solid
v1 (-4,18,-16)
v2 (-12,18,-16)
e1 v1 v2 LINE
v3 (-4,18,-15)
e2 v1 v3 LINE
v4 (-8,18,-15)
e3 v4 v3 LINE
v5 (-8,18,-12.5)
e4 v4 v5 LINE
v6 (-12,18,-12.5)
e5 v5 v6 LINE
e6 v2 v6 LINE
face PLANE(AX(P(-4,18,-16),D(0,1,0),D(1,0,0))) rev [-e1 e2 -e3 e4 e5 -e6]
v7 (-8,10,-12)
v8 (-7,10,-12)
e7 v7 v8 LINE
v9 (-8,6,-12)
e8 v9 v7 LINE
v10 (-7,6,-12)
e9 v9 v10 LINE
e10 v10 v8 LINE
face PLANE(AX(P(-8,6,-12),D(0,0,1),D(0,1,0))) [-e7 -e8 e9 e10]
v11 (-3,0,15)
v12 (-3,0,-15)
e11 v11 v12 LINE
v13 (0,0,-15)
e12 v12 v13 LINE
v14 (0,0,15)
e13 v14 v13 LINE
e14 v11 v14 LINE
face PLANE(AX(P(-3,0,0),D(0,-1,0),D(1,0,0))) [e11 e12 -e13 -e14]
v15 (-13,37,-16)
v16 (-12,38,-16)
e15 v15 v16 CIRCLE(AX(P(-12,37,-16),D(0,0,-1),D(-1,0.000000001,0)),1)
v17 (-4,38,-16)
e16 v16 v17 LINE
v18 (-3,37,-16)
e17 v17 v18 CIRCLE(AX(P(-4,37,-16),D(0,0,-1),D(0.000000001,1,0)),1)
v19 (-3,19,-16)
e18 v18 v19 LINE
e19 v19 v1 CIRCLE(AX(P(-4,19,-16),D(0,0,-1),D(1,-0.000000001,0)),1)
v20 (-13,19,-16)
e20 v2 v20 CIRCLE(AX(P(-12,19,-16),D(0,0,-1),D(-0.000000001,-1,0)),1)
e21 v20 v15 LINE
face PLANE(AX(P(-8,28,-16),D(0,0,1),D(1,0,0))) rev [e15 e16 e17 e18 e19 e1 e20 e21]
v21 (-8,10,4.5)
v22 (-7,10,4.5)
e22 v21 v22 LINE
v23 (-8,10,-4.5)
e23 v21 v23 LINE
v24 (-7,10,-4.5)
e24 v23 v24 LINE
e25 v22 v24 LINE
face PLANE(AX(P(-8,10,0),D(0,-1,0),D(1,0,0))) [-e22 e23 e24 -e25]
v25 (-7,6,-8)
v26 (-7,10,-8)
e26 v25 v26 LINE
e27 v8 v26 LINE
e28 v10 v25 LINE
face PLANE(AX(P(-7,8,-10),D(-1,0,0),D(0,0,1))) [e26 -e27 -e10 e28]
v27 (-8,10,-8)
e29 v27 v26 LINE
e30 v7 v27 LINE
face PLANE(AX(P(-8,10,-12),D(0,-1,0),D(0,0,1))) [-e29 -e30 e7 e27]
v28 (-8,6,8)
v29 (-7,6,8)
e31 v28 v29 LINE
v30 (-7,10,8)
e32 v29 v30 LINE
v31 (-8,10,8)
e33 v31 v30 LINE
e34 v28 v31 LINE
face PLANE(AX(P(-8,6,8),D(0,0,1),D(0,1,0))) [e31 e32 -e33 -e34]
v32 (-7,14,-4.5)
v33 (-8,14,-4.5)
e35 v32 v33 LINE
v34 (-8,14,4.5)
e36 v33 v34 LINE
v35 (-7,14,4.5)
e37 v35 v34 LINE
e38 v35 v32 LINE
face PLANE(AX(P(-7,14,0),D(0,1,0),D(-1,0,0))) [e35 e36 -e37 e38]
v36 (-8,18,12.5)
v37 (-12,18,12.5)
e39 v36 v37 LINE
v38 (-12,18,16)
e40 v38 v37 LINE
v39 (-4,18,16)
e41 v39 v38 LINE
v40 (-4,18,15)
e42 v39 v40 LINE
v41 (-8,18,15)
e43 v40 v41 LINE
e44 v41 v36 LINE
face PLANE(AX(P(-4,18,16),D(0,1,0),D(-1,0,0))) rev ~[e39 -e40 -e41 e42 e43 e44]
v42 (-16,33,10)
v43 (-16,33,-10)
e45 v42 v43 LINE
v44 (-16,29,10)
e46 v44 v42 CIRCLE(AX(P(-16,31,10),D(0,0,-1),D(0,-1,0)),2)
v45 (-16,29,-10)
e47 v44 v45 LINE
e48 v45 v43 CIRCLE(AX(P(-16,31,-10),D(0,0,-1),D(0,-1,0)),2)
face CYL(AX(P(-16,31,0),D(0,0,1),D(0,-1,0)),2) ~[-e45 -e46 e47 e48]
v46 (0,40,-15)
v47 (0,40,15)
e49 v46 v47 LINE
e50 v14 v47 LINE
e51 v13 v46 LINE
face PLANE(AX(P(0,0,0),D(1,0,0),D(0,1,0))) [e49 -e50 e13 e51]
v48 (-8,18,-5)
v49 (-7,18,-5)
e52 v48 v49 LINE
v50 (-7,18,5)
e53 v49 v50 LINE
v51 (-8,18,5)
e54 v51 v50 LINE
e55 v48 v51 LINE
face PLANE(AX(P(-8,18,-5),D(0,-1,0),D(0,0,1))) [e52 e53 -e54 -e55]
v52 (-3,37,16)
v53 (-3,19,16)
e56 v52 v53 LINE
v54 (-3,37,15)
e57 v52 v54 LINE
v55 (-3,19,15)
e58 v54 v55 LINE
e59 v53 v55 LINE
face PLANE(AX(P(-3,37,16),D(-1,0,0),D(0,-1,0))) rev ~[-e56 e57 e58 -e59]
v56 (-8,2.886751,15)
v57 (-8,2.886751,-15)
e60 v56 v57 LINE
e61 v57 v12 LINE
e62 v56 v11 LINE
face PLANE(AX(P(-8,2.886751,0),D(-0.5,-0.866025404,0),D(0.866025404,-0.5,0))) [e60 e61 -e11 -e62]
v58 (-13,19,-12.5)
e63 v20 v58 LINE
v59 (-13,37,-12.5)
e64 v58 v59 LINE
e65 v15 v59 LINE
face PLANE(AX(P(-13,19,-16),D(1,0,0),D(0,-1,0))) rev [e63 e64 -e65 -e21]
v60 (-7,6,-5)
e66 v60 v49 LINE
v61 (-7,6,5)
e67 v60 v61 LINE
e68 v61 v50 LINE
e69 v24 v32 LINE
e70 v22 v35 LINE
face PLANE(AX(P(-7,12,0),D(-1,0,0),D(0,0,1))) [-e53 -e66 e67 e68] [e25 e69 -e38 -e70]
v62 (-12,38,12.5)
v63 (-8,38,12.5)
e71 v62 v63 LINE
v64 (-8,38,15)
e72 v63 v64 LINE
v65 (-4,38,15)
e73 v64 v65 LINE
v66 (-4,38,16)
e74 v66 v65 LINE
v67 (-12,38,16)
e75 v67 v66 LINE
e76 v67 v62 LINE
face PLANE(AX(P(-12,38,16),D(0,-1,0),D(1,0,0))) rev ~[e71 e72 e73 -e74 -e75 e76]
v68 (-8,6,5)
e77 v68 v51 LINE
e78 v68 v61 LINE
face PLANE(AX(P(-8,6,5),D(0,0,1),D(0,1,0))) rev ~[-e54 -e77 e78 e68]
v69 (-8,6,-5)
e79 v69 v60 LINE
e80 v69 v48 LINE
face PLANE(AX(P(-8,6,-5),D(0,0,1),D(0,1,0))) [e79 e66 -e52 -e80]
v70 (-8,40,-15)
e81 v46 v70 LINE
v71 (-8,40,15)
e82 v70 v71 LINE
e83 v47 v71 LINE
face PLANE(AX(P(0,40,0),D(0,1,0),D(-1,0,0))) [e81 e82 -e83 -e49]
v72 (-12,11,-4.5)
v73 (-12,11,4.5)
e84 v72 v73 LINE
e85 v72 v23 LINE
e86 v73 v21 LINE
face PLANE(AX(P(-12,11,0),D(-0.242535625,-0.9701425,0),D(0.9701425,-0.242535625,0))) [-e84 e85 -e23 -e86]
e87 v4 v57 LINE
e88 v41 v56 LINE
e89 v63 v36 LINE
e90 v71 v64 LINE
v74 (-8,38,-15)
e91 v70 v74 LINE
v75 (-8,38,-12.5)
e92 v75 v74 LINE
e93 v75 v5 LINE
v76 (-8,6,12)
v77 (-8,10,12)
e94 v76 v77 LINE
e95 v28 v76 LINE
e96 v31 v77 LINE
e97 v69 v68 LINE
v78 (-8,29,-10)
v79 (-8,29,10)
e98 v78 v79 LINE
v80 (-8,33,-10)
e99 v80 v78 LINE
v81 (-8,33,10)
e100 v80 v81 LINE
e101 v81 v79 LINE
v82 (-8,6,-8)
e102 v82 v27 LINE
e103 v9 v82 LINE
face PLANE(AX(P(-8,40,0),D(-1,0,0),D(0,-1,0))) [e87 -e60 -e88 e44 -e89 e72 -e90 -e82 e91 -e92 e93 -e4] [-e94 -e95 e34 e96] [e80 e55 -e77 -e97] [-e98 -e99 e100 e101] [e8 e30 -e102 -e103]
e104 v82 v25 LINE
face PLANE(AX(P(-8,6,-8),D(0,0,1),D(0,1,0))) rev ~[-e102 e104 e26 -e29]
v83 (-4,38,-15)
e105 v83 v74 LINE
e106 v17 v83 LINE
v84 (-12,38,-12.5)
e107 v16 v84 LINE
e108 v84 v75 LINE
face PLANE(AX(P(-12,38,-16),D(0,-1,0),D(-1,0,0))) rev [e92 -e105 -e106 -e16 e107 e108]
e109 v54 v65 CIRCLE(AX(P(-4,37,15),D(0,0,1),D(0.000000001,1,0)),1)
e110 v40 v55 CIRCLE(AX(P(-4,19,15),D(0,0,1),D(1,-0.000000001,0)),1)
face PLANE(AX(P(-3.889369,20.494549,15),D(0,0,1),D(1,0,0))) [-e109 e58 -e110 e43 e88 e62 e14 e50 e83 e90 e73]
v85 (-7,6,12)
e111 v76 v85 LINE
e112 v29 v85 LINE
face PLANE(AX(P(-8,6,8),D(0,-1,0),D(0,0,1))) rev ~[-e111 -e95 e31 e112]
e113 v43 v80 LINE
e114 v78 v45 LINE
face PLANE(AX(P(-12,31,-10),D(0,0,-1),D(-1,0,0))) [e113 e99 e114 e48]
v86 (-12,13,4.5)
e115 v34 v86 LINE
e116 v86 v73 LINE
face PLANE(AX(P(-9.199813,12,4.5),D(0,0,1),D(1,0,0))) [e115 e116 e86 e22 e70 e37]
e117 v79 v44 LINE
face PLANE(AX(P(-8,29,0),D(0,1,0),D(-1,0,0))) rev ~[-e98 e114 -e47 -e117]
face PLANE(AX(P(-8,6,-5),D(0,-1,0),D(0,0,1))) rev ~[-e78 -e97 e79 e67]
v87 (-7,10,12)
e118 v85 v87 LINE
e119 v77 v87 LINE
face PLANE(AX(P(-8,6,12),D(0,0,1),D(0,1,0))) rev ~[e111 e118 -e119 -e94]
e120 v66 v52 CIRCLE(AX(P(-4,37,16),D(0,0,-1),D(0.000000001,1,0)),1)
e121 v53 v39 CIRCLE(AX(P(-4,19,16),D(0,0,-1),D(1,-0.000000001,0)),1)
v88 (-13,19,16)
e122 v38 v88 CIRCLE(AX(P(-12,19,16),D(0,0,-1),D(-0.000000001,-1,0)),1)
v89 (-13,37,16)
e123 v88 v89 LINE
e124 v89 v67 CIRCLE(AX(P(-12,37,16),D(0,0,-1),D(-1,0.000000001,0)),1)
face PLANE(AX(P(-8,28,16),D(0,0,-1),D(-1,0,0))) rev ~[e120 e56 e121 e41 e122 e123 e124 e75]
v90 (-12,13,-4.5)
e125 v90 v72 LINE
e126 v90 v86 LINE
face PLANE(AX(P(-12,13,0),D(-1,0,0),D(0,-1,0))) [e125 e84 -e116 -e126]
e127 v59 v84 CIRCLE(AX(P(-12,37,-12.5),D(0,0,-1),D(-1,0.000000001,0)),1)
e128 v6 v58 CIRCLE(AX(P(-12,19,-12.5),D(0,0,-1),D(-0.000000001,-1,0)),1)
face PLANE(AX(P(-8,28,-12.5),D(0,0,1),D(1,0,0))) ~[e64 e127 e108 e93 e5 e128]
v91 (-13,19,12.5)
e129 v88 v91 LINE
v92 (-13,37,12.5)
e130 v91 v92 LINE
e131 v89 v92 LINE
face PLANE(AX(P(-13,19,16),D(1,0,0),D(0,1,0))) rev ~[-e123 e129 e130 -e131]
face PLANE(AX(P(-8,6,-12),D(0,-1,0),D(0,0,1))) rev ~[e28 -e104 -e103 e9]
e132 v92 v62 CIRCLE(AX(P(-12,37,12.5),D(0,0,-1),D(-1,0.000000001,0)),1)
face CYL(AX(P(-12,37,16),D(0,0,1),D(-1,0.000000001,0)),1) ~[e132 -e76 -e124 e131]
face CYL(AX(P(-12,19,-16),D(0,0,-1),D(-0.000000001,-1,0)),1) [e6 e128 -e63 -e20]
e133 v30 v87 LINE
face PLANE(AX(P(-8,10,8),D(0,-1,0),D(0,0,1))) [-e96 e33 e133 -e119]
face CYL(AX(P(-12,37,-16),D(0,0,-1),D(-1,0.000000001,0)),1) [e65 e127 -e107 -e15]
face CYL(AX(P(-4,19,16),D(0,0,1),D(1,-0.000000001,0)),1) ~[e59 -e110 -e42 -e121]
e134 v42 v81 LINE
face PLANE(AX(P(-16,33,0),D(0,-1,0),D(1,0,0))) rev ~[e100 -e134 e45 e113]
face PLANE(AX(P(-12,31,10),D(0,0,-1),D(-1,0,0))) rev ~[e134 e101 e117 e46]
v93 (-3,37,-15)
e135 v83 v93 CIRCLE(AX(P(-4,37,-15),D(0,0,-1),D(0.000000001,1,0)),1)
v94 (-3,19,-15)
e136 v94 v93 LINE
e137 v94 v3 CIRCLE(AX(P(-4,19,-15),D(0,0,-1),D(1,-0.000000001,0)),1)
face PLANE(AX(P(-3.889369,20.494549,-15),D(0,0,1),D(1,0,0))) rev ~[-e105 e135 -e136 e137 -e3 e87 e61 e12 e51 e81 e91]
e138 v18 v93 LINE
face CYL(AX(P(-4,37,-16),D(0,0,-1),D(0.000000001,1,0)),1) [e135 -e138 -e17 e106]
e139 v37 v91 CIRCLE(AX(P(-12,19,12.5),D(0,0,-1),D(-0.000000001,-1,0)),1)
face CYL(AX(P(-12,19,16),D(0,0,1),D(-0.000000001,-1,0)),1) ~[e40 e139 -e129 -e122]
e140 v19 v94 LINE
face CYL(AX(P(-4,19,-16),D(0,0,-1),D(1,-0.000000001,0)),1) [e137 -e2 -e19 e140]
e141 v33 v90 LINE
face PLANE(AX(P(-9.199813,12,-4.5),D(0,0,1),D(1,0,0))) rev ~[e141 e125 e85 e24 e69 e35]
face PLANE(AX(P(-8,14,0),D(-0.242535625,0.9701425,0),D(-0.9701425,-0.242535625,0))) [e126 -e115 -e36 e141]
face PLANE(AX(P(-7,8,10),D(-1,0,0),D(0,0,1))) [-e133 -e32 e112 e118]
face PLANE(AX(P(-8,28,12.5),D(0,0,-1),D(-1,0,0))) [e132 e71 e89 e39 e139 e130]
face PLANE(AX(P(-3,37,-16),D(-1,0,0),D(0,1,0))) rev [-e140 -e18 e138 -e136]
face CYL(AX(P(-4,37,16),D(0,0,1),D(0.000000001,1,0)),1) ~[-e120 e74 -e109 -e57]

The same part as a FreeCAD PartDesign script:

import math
import FreeCAD as App
import Part
import Sketcher
from FreeCAD import Vector
Q = App.Units.Quantity

doc = App.newDocument("Part")
body = doc.addObject("PartDesign::Body", "Body")

# Sketch on XY plane
sketch1 = body.newObject("Sketcher::SketchObject", "Sketch")
sketch1.AttachmentSupport = (doc.getObject("XY_Plane"), [""])
sketch1.MapMode = "FlatFace"
sketch1.addGeometry(Part.LineSegment(Vector(0, 0, 0), Vector(0, 40, 0)), False)
sketch1.addGeometry(Part.LineSegment(Vector(0, 40, 0), Vector(-8, 40, 0)), False)
sketch1.addGeometry(Part.LineSegment(Vector(-8, 40, 0), Vector(-8, 2.886751, 0)), False)
sketch1.addGeometry(Part.LineSegment(Vector(-8, 2.886751, 0), Vector(-3, 0, 0)), False)
sketch1.addGeometry(Part.LineSegment(Vector(-3, 0, 0), Vector(0, 0, 0)), False)
sketch1.addConstraint(Sketcher.Constraint("Coincident", 0, 2, 1, 1))
sketch1.addConstraint(Sketcher.Constraint("Coincident", 1, 2, 2, 1))
sketch1.addConstraint(Sketcher.Constraint("Coincident", 2, 2, 3, 1))
sketch1.addConstraint(Sketcher.Constraint("Coincident", 3, 2, 4, 1))
sketch1.addConstraint(Sketcher.Constraint("Coincident", 4, 2, 0, 1))
sketch1.addConstraint(Sketcher.Constraint("Vertical", 0))
sketch1.addConstraint(Sketcher.Constraint("Horizontal", 1))
sketch1.addConstraint(Sketcher.Constraint("Vertical", 2))
sketch1.addConstraint(Sketcher.Constraint("Horizontal", 4))
sketch1.addConstraint(Sketcher.Constraint("Coincident", 4, 2, -1, 1))
sketch1.addConstraint(Sketcher.Constraint("DistanceX", 1, 2, 1, 1, Q("8 mm")))
sketch1.addConstraint(Sketcher.Constraint("DistanceX", 4, 1, 4, 2, Q("3 mm")))
sketch1.addConstraint(Sketcher.Constraint("DistanceY", 0, 1, 0, 2, Q("40 mm")))
sketch1.addConstraint(Sketcher.Constraint("Angle", 3, Q("-30 deg")))
pad1 = body.newObject("PartDesign::Pad", "Pad")
pad1.Profile = sketch1
pad1.Length = 30
pad1.Midplane = True

# Sketch on YZ plane
sketch2 = body.newObject("Sketcher::SketchObject", "Sketch001")
sketch2.AttachmentSupport = (doc.getObject("YZ_Plane"), [""])
sketch2.MapMode = "FlatFace"
sketch2.AttachmentOffset = App.Placement(Vector(0, 0, -8), App.Rotation())
sketch2.addGeometry(Part.LineSegment(Vector(18, -5, 0), Vector(6, -5, 0)), False)
sketch2.addGeometry(Part.LineSegment(Vector(6, -5, 0), Vector(6, 5, 0)), False)
sketch2.addGeometry(Part.LineSegment(Vector(6, 5, 0), Vector(18, 5, 0)), False)
sketch2.addGeometry(Part.LineSegment(Vector(18, 5, 0), Vector(18, -5, 0)), False)
sketch2.addGeometry(Part.LineSegment(Vector(10, -12, 0), Vector(6, -12, 0)), False)
sketch2.addGeometry(Part.LineSegment(Vector(6, -12, 0), Vector(6, -8, 0)), False)
sketch2.addGeometry(Part.LineSegment(Vector(6, -8, 0), Vector(10, -8, 0)), False)
sketch2.addGeometry(Part.LineSegment(Vector(10, -8, 0), Vector(10, -12, 0)), False)
sketch2.addGeometry(Part.LineSegment(Vector(10, 8, 0), Vector(6, 8, 0)), False)
sketch2.addGeometry(Part.LineSegment(Vector(6, 8, 0), Vector(6, 12, 0)), False)
sketch2.addGeometry(Part.LineSegment(Vector(6, 12, 0), Vector(10, 12, 0)), False)
sketch2.addGeometry(Part.LineSegment(Vector(10, 12, 0), Vector(10, 8, 0)), False)
sketch2.addConstraint(Sketcher.Constraint("Coincident", 0, 2, 1, 1))
sketch2.addConstraint(Sketcher.Constraint("Coincident", 1, 2, 2, 1))
sketch2.addConstraint(Sketcher.Constraint("Coincident", 2, 2, 3, 1))
sketch2.addConstraint(Sketcher.Constraint("Coincident", 3, 2, 0, 1))
sketch2.addConstraint(Sketcher.Constraint("Coincident", 4, 2, 5, 1))
sketch2.addConstraint(Sketcher.Constraint("Coincident", 5, 2, 6, 1))
sketch2.addConstraint(Sketcher.Constraint("Coincident", 6, 2, 7, 1))
sketch2.addConstraint(Sketcher.Constraint("Coincident", 7, 2, 4, 1))
sketch2.addConstraint(Sketcher.Constraint("Coincident", 8, 2, 9, 1))
sketch2.addConstraint(Sketcher.Constraint("Coincident", 9, 2, 10, 1))
sketch2.addConstraint(Sketcher.Constraint("Coincident", 10, 2, 11, 1))
sketch2.addConstraint(Sketcher.Constraint("Coincident", 11, 2, 8, 1))
sketch2.addConstraint(Sketcher.Constraint("Horizontal", 0))
sketch2.addConstraint(Sketcher.Constraint("Vertical", 1))
sketch2.addConstraint(Sketcher.Constraint("Horizontal", 2))
sketch2.addConstraint(Sketcher.Constraint("Vertical", 3))
sketch2.addConstraint(Sketcher.Constraint("Horizontal", 4))
sketch2.addConstraint(Sketcher.Constraint("Vertical", 5))
sketch2.addConstraint(Sketcher.Constraint("Horizontal", 6))
sketch2.addConstraint(Sketcher.Constraint("Vertical", 7))
sketch2.addConstraint(Sketcher.Constraint("Horizontal", 8))
sketch2.addConstraint(Sketcher.Constraint("Vertical", 9))
sketch2.addConstraint(Sketcher.Constraint("Horizontal", 10))
sketch2.addConstraint(Sketcher.Constraint("Vertical", 11))
sketch2.addConstraint(Sketcher.Constraint("Symmetric", 5, 2, 8, 2, -1))
sketch2.addConstraint(Sketcher.Constraint("Symmetric", 7, 2, 10, 2, -1))
sketch2.addConstraint(Sketcher.Constraint("Vertical", 1, 2, 4, 2))
sketch2.addConstraint(Sketcher.Constraint("Equal", 10, 5))
sketch2.addConstraint(Sketcher.Constraint("DistanceX", 0, 2, 0, 1, Q("12 mm")))
sketch2.addConstraint(Sketcher.Constraint("DistanceX", 4, 2, 4, 1, Q("4 mm")))
sketch2.addConstraint(Sketcher.Constraint("DistanceY", 1, 1, 1, 2, Q("10 mm")))
sketch2.addConstraint(Sketcher.Constraint("DistanceX", -1, 1, 0, 2, Q("6 mm")))
sketch2.addConstraint(Sketcher.Constraint("DistanceY", 0, 2, -1, 1, Q("5 mm")))
sketch2.addConstraint(Sketcher.Constraint("DistanceY", 4, 2, -1, 1, Q("12 mm")))
pocket1 = body.newObject("PartDesign::Pocket", "Pocket")
pocket1.Profile = sketch2
pocket1.Length = 1
pocket1.Reversed = True

# Sketch on XY plane
sketch3 = body.newObject("Sketcher::SketchObject", "Sketch002")
sketch3.AttachmentSupport = (doc.getObject("XY_Plane"), [""])
sketch3.MapMode = "FlatFace"
sketch3.addGeometry(Part.LineSegment(Vector(-7, 14, 0), Vector(-8, 14, 0)), False)
sketch3.addGeometry(Part.LineSegment(Vector(-8, 14, 0), Vector(-12, 13, 0)), False)
sketch3.addGeometry(Part.LineSegment(Vector(-12, 13, 0), Vector(-12, 11, 0)), False)
sketch3.addGeometry(Part.LineSegment(Vector(-12, 11, 0), Vector(-8, 10, 0)), False)
sketch3.addGeometry(Part.LineSegment(Vector(-8, 10, 0), Vector(-7, 10, 0)), False)
sketch3.addGeometry(Part.LineSegment(Vector(-7, 10, 0), Vector(-7, 14, 0)), False)
sketch3.addConstraint(Sketcher.Constraint("Coincident", 0, 2, 1, 1))
sketch3.addConstraint(Sketcher.Constraint("Coincident", 1, 2, 2, 1))
sketch3.addConstraint(Sketcher.Constraint("Coincident", 2, 2, 3, 1))
sketch3.addConstraint(Sketcher.Constraint("Coincident", 3, 2, 4, 1))
sketch3.addConstraint(Sketcher.Constraint("Coincident", 4, 2, 5, 1))
sketch3.addConstraint(Sketcher.Constraint("Coincident", 5, 2, 0, 1))
sketch3.addConstraint(Sketcher.Constraint("Horizontal", 0))
sketch3.addConstraint(Sketcher.Constraint("Vertical", 2))
sketch3.addConstraint(Sketcher.Constraint("Horizontal", 4))
sketch3.addConstraint(Sketcher.Constraint("Vertical", 5))
sketch3.addConstraint(Sketcher.Constraint("Vertical", 0, 2, 3, 2))
sketch3.addConstraint(Sketcher.Constraint("Equal", 1, 3))
sketch3.addConstraint(Sketcher.Constraint("DistanceX", 0, 2, 0, 1, Q("1 mm")))
sketch3.addConstraint(Sketcher.Constraint("DistanceY", 2, 2, 2, 1, Q("2 mm")))
sketch3.addConstraint(Sketcher.Constraint("DistanceY", 5, 1, 5, 2, Q("4 mm")))
sketch3.addConstraint(Sketcher.Constraint("DistanceX", 0, 2, -1, 1, Q("8 mm")))
sketch3.addConstraint(Sketcher.Constraint("DistanceY", -1, 1, 0, 2, Q("14 mm")))
sketch3.addConstraint(Sketcher.Constraint("DistanceX", 1, 2, -1, 1, Q("12 mm")))
pad2 = body.newObject("PartDesign::Pad", "Pad001")
pad2.Profile = sketch3
pad2.Length = 9
pad2.Midplane = True

# Sketch on XY plane
sketch4 = body.newObject("Sketcher::SketchObject", "Sketch003")
sketch4.AttachmentSupport = (doc.getObject("XY_Plane"), [""])
sketch4.MapMode = "FlatFace"
sketch4.addGeometry(Part.LineSegment(Vector(-16, 29, 0), Vector(-8, 29, 0)), False)
sketch4.addGeometry(Part.ArcOfCircle(Part.Circle(Vector(-8, 31, 0), Vector(0, 0, 1), 2), math.radians(-90), math.radians(90)), False)
sketch4.addGeometry(Part.LineSegment(Vector(-8, 33, 0), Vector(-16, 33, 0)), False)
sketch4.addGeometry(Part.ArcOfCircle(Part.Circle(Vector(-16, 31, 0), Vector(0, 0, 1), 2), math.radians(90), math.radians(270)), False)
sketch4.addConstraint(Sketcher.Constraint("Tangent", 0, 2, 1, 1))
sketch4.addConstraint(Sketcher.Constraint("Tangent", 1, 2, 2, 1))
sketch4.addConstraint(Sketcher.Constraint("Tangent", 2, 2, 3, 1))
sketch4.addConstraint(Sketcher.Constraint("Tangent", 3, 2, 0, 1))
sketch4.addConstraint(Sketcher.Constraint("Horizontal", 0))
sketch4.addConstraint(Sketcher.Constraint("Horizontal", 2))
sketch4.addConstraint(Sketcher.Constraint("Radius", 1, Q("2 mm")))
sketch4.addConstraint(Sketcher.Constraint("DistanceX", 0, 1, 0, 2, Q("8 mm")))
sketch4.addConstraint(Sketcher.Constraint("DistanceX", 1, 3, -1, 1, Q("8 mm")))
sketch4.addConstraint(Sketcher.Constraint("DistanceY", -1, 1, 1, 3, Q("31 mm")))
pad3 = body.newObject("PartDesign::Pad", "Pad002")
pad3.Profile = sketch4
pad3.Length = 20
pad3.Midplane = True

# Sketch on XY plane
sketch5 = body.newObject("Sketcher::SketchObject", "Sketch004")
sketch5.AttachmentSupport = (doc.getObject("XY_Plane"), [""])
sketch5.MapMode = "FlatFace"
sketch5.AttachmentOffset = App.Placement(Vector(0, 0, 16), App.Rotation())
sketch5.addGeometry(Part.LineSegment(Vector(-12, 18, 0), Vector(-4, 18, 0)), False)
sketch5.addGeometry(Part.ArcOfCircle(Part.Circle(Vector(-4, 19, 0), Vector(0, 0, 1), 1), math.radians(-90), math.radians(0)), False)
sketch5.addGeometry(Part.LineSegment(Vector(-3, 19, 0), Vector(-3, 37, 0)), False)
sketch5.addGeometry(Part.ArcOfCircle(Part.Circle(Vector(-4, 37, 0), Vector(0, 0, 1), 1), math.radians(0), math.radians(90)), False)
sketch5.addGeometry(Part.LineSegment(Vector(-4, 38, 0), Vector(-12, 38, 0)), False)
sketch5.addGeometry(Part.ArcOfCircle(Part.Circle(Vector(-12, 37, 0), Vector(0, 0, 1), 1), math.radians(90), math.radians(180)), False)
sketch5.addGeometry(Part.LineSegment(Vector(-13, 37, 0), Vector(-13, 19, 0)), False)
sketch5.addGeometry(Part.ArcOfCircle(Part.Circle(Vector(-12, 19, 0), Vector(0, 0, 1), 1), math.radians(-180), math.radians(-90)), False)
sketch5.addConstraint(Sketcher.Constraint("Tangent", 0, 2, 1, 1))
sketch5.addConstraint(Sketcher.Constraint("Tangent", 1, 2, 2, 1))
sketch5.addConstraint(Sketcher.Constraint("Tangent", 2, 2, 3, 1))
sketch5.addConstraint(Sketcher.Constraint("Tangent", 3, 2, 4, 1))
sketch5.addConstraint(Sketcher.Constraint("Tangent", 4, 2, 5, 1))
sketch5.addConstraint(Sketcher.Constraint("Tangent", 5, 2, 6, 1))
sketch5.addConstraint(Sketcher.Constraint("Tangent", 6, 2, 7, 1))
sketch5.addConstraint(Sketcher.Constraint("Tangent", 7, 2, 0, 1))
sketch5.addConstraint(Sketcher.Constraint("Horizontal", 0))
sketch5.addConstraint(Sketcher.Constraint("Vertical", 2))
sketch5.addConstraint(Sketcher.Constraint("Horizontal", 4))
sketch5.addConstraint(Sketcher.Constraint("Vertical", 6))
sketch5.addConstraint(Sketcher.Constraint("Equal", 1, 3))
sketch5.addConstraint(Sketcher.Constraint("Equal", 3, 5))
sketch5.addConstraint(Sketcher.Constraint("Equal", 5, 7))
sketch5.addConstraint(Sketcher.Constraint("Radius", 1, Q("1 mm")))
sketch5.addConstraint(Sketcher.Constraint("DistanceX", 0, 1, 0, 2, Q("8 mm")))
sketch5.addConstraint(Sketcher.Constraint("DistanceY", 2, 1, 2, 2, Q("18 mm")))
sketch5.addConstraint(Sketcher.Constraint("DistanceX", 1, 3, -1, 1, Q("4 mm")))
sketch5.addConstraint(Sketcher.Constraint("DistanceY", -1, 1, 1, 3, Q("19 mm")))
pad4 = body.newObject("PartDesign::Pad", "Pad003")
pad4.Profile = sketch5
pad4.Length = 3.5
pad4.Reversed = True
doc.recompute()

mirrored = body.newObject("PartDesign::Mirrored", "Mirrored")
mirrored.Originals = [pad4]
mirrored.MirrorPlane = (doc.getObject("XY_Plane"), [""])
body.Tip = mirrored

doc.recompute()
